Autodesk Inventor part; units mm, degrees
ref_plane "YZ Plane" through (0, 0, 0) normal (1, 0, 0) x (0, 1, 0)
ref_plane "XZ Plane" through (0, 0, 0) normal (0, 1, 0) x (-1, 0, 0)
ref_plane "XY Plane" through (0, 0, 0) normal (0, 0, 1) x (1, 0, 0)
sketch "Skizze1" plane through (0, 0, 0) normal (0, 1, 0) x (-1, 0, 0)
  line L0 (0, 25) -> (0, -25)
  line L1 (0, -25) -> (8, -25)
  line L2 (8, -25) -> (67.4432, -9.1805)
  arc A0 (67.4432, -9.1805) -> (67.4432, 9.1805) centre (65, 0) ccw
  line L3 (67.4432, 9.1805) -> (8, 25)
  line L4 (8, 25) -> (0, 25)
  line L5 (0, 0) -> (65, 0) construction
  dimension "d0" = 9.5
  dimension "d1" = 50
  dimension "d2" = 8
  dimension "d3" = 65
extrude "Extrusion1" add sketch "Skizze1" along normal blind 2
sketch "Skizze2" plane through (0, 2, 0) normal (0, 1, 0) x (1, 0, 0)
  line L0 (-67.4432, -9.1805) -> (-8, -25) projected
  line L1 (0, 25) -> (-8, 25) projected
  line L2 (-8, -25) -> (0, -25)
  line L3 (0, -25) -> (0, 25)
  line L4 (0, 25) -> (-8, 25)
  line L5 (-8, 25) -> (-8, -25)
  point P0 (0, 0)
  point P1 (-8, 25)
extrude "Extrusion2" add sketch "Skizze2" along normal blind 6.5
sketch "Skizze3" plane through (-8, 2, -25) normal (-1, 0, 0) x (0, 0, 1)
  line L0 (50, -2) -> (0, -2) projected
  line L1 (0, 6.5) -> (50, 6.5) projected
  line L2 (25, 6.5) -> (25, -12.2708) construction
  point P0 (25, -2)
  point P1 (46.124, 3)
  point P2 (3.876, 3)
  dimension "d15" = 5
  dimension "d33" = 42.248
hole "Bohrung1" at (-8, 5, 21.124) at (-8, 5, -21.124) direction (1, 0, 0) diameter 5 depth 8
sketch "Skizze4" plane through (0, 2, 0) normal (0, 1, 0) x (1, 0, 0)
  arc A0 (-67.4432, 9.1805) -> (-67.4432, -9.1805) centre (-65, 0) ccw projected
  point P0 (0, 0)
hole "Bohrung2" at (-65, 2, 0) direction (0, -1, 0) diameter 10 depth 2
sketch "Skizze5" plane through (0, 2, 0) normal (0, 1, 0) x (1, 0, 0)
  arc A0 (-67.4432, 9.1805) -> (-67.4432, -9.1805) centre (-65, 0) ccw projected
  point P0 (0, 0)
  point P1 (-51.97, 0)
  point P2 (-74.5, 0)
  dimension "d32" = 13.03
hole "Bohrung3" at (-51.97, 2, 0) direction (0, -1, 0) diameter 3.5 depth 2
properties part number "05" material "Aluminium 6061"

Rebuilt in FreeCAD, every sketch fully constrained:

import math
import FreeCAD as App
import Part
import Sketcher

V = App.Vector

doc = App.newDocument("Part")
params = doc.addObject("Spreadsheet::Sheet", "Params")
for row, (alias, value) in enumerate([
    ("sketch1_radius", "9.5 mm"),
    ("sketch1_width", "8 mm"),
    ("sketch1_height", "50 mm"),
    ("pad1_length", "2 mm"),
    ("sketch2_width", "8 mm"),
    ("sketch2_height", "50 mm"),
    ("pad2_length", "6.5 mm"),
    ("sketch3_diameter", "5 mm"),
    ("hole_diameter", "5 mm"),
    ("hole_depth", "8 mm"),
    ("sketch4_diameter", "10 mm"),
    ("hole2_diameter", "10 mm"),
    ("hole2_depth", "2 mm"),
    ("sketch5_diameter", "3.5 mm"),
    ("hole3_diameter", "3.5 mm"),
    ("hole3_depth", "2 mm"),
], start=1):
    params.set(f"A{row}", alias)
    params.set(f"B{row}", "=" + value)
    params.setAlias(f"B{row}", alias)

body = doc.addObject("PartDesign::Body", "Body")

sketch1 = doc.addObject("Sketcher::SketchObject", "Sketch")
body.addObject(sketch1)
sketch1.AttachmentSupport = (doc.XZ_Plane, [""])
sketch1.MapMode = "FlatFace"
sketch1.addGeometry([
    Part.LineSegment(V(-8, 25, 0), V(0, 25, 0)),
    Part.LineSegment(V(0, 25, 0), V(0, -25, 0)),
    Part.LineSegment(V(0, -25, 0), V(-8, -25, 0)),
    Part.LineSegment(V(-8, -25, 0), V(-67, -9, 0)),
    Part.ArcOfCircle(Part.Circle(V(-65, 0, 0), V(0, 0, 1), 10), math.radians(105), math.radians(255)),
    Part.LineSegment(V(-67, 9, 0), V(-8, 25, 0)),
], False)
sketch1.addConstraint([
    Sketcher.Constraint("Coincident", 0, 2, 1, 1),
    Sketcher.Constraint("Coincident", 1, 2, 2, 1),
    Sketcher.Constraint("Coincident", 2, 2, 3, 1),
    Sketcher.Constraint("Tangent", 3, 2, 4, 2),
    Sketcher.Constraint("Tangent", 4, 1, 5, 1),
    Sketcher.Constraint("Coincident", 5, 2, 0, 1),
    Sketcher.Constraint("Horizontal", 0),
    Sketcher.Constraint("Vertical", 1),
    Sketcher.Constraint("Horizontal", 2),
    Sketcher.Constraint("Symmetric", 0, 2, 1, 2, -1, 1),
    Sketcher.Constraint("Symmetric", 3, 2, 4, 1, -1),
    Sketcher.Constraint("Radius", 4, 9.5),
    Sketcher.Constraint("DistanceX", 0, 1, 0, 2, 8.0),
    Sketcher.Constraint("DistanceY", 1, 2, 1, 1, 50.0),
    Sketcher.Constraint("DistanceX", 4, 3, -1, 1, 65.0),
])
sketch1.setExpression("Constraints[11]", "Params.sketch1_radius")
sketch1.setExpression("Constraints[12]", "Params.sketch1_width")
sketch1.setExpression("Constraints[13]", "Params.sketch1_height")
pad1 = doc.addObject("PartDesign::Pad", "Pad")
body.addObject(pad1)
pad1.Profile = sketch1
pad1.setExpression("Length", "Params.pad1_length")
pad1.Reversed = True

sketch2 = doc.addObject("Sketcher::SketchObject", "Sketch001")
body.addObject(sketch2)
sketch2.AttachmentSupport = (doc.XZ_Plane, [""])
sketch2.MapMode = "FlatFace"
sketch2.AttachmentOffset = App.Placement(V(0, 0, -2), App.Rotation())
sketch2.addGeometry([
    Part.LineSegment(V(0, 25, 0), V(0, -25, 0)),
    Part.LineSegment(V(0, -25, 0), V(-8, -25, 0)),
    Part.LineSegment(V(-8, -25, 0), V(-8, 25, 0)),
    Part.LineSegment(V(-8, 25, 0), V(0, 25, 0)),
], False)
sketch2.addConstraint([
    Sketcher.Constraint("Coincident", 0, 2, 1, 1),
    Sketcher.Constraint("Coincident", 1, 2, 2, 1),
    Sketcher.Constraint("Coincident", 2, 2, 3, 1),
    Sketcher.Constraint("Coincident", 3, 2, 0, 1),
    Sketcher.Constraint("Vertical", 0),
    Sketcher.Constraint("Horizontal", 1),
    Sketcher.Constraint("Vertical", 2),
    Sketcher.Constraint("Horizontal", 3),
    Sketcher.Constraint("Symmetric", 0, 2, 3, 2, -1, 1),
    Sketcher.Constraint("DistanceX", 1, 2, 1, 1, 8.0),
    Sketcher.Constraint("DistanceY", 0, 2, 0, 1, 50.0),
])
sketch2.setExpression("Constraints[9]", "Params.sketch2_width")
sketch2.setExpression("Constraints[10]", "Params.sketch2_height")
pad2 = doc.addObject("PartDesign::Pad", "Pad001")
body.addObject(pad2)
pad2.Profile = sketch2
pad2.setExpression("Length", "Params.pad2_length")
pad2.Reversed = True

sketch3 = doc.addObject("Sketcher::SketchObject", "Sketch002")
body.addObject(sketch3)
sketch3.AttachmentSupport = (doc.YZ_Plane, [""])
sketch3.MapMode = "FlatFace"
sketch3.AttachmentOffset = App.Placement(V(0, 0, -8), App.Rotation())
sketch3.addGeometry([
    Part.Circle(V(5, 21.1, 0), V(0, 0, 1), 2.5),
    Part.Circle(V(5, -21.1, 0), V(0, 0, 1), 2.5),
], False)
sketch3.addConstraint([
    Sketcher.Constraint("Equal", 0, 1),
    Sketcher.Constraint("Symmetric", 0, 3, 1, 3, -1),
    Sketcher.Constraint("Diameter", 0, 5.0),
    Sketcher.Constraint("DistanceX", -1, 1, 0, 3, 5.0),
    Sketcher.Constraint("DistanceY", -1, 1, 0, 3, 21.124),
])
sketch3.setExpression("Constraints[2]", "Params.sketch3_diameter")
doc.recompute()
hole = doc.addObject("PartDesign::Hole", "Hole")
body.addObject(hole)
hole.Profile = sketch3
hole.ThreadType = "None"
hole.setExpression("Diameter", "Params.hole_diameter")
hole.DepthType = "Dimension"
hole.setExpression("Depth", "Params.hole_depth")
hole.DrillPoint = "Flat"
hole.Reversed = True

sketch4 = doc.addObject("Sketcher::SketchObject", "Sketch003")
body.addObject(sketch4)
sketch4.AttachmentSupport = (doc.XZ_Plane, [""])
sketch4.MapMode = "FlatFace"
sketch4.AttachmentOffset = App.Placement(V(0, 0, -2), App.Rotation())
sketch4.addGeometry(Part.Circle(V(-65, 0, 0), V(0, 0, 1), 5), False)
sketch4.addConstraint([
    Sketcher.Constraint("PointOnObject", 0, 3, -1),
    Sketcher.Constraint("Diameter", 0, 10.0),
    Sketcher.Constraint("DistanceX", 0, 3, -1, 1, 65.0),
])
sketch4.setExpression("Constraints[1]", "Params.sketch4_diameter")
doc.recompute()
hole2 = doc.addObject("PartDesign::Hole", "Hole001")
body.addObject(hole2)
hole2.Profile = sketch4
hole2.ThreadType = "None"
hole2.setExpression("Diameter", "Params.hole2_diameter")
hole2.DepthType = "Dimension"
hole2.setExpression("Depth", "Params.hole2_depth")
hole2.DrillPoint = "Flat"
hole2.Reversed = True

sketch5 = doc.addObject("Sketcher::SketchObject", "Sketch004")
body.addObject(sketch5)
sketch5.AttachmentSupport = (doc.XZ_Plane, [""])
sketch5.MapMode = "FlatFace"
sketch5.AttachmentOffset = App.Placement(V(0, 0, -2), App.Rotation())
sketch5.addGeometry(Part.Circle(V(-52, 0, 0), V(0, 0, 1), 1.8), False)
sketch5.addConstraint([
    Sketcher.Constraint("PointOnObject", 0, 3, -1),
    Sketcher.Constraint("Diameter", 0, 3.5),
    Sketcher.Constraint("DistanceX", 0, 3, -1, 1, 51.97),
])
sketch5.setExpression("Constraints[1]", "Params.sketch5_diameter")
doc.recompute()
hole3 = doc.addObject("PartDesign::Hole", "Hole002")
body.addObject(hole3)
hole3.Profile = sketch5
hole3.ThreadType = "None"
hole3.setExpression("Diameter", "Params.hole3_diameter")
hole3.DepthType = "Dimension"
hole3.setExpression("Depth", "Params.hole3_depth")
hole3.DrillPoint = "Flat"
hole3.Reversed = True

doc.recompute()
